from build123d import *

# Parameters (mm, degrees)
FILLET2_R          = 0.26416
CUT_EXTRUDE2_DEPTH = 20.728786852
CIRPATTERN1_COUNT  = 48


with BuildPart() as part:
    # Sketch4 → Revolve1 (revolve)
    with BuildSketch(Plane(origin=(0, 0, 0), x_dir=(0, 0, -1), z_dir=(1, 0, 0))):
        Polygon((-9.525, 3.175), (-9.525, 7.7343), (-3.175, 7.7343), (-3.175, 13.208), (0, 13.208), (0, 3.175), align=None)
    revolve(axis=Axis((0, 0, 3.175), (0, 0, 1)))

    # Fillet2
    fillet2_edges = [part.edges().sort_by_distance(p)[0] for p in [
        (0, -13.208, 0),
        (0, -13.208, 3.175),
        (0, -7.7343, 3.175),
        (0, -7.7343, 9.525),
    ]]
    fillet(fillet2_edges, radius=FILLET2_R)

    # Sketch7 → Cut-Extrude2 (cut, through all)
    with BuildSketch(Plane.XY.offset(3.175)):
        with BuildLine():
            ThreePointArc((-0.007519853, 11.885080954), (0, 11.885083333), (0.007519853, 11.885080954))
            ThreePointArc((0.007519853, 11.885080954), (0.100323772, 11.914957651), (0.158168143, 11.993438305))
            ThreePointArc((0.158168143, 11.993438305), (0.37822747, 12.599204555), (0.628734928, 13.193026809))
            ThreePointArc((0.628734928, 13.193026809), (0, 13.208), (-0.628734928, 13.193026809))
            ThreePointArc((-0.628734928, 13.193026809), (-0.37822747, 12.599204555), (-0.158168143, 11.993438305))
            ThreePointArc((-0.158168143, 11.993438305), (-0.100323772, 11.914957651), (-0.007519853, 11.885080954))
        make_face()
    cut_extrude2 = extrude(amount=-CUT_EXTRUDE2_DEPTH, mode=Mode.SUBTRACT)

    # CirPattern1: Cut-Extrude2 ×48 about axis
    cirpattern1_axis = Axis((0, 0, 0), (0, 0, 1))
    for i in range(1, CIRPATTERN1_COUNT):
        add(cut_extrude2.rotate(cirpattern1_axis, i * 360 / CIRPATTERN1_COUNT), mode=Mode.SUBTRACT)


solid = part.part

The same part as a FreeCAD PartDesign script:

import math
import FreeCAD as App
import Part
import Sketcher
from FreeCAD import Vector
Q = App.Units.Quantity


def edges_at(feature, points):
    """Names of the edges that pass closest to the given points."""
    edges = feature.Shape.Edges
    near = lambda p: min(range(len(edges)), key=lambda i: edges[i].distToShape(Part.Vertex(*p))[0])
    return sorted({f"Edge{near(p) + 1}" for p in points})


def add_polygon(sketch, points):
    """Adds a closed chain of lines whose ends are joined by coincident constraints."""
    first, n = sketch.GeometryCount, len(points)
    for a, b in zip(points, points[1:] + points[:1]):
        sketch.addGeometry(Part.LineSegment(App.Vector(*a, 0), App.Vector(*b, 0)), False)
    for i in range(n):
        sketch.addConstraint(Sketcher.Constraint("Coincident", first + i, 2, first + (i + 1) % n, 1))

doc = App.newDocument("Part")
params = doc.addObject("Spreadsheet::Sheet", "Params")
for row, (alias, value) in enumerate([
    ("sketch1_height", "0.25 in"),
    ("sketch1_width", "0.395 in"),
    ("sketch1_height2", "0.375 in"),
    ("revolution_angle", "360 deg"),
    ("fillet_radius", "0.0104 in"),
    ("sketch2_radius", "0.5 in"),
    ("sketch2_radius2", "0.5 in"),
    ("sketch2_radius3", "0.52 in"),
], start=1):
    params.set(f"A{row}", alias)
    params.set(f"B{row}", "=" + value)
    params.setAlias(f"B{row}", alias)

body = doc.addObject("PartDesign::Body", "Body")

# Sketch on YZ plane
sketch1 = doc.addObject("Sketcher::SketchObject", "Sketch")
body.addObject(sketch1)
sketch1.AttachmentSupport = (doc.YZ_Plane, [""])
sketch1.MapMode = "FlatFace"
add_polygon(sketch1, [(7.7, 9.5), (3.2, 9.5), (3.2, 0), (13.2, 0), (13.2, 3.2), (7.7, 3.2)])  # lines 0-5
sketch1.addConstraint([
    Sketcher.Constraint("Horizontal", 0),
    Sketcher.Constraint("Vertical", 1),
    Sketcher.Constraint("Horizontal", 2),
    Sketcher.Constraint("Vertical", 3),
    Sketcher.Constraint("Horizontal", 4),
    Sketcher.Constraint("Vertical", 5),
    Sketcher.Constraint("PointOnObject", 1, 2, -1),
    Sketcher.Constraint("DistanceY", 5, 1, 5, 2, Q("0.25 in")),
    Sketcher.Constraint("DistanceX", 2, 1, 2, 2, Q("0.395 in")),
    Sketcher.Constraint("DistanceY", 1, 2, 1, 1, Q("0.375 in")),
    Sketcher.Constraint("DistanceX", -1, 1, 2, 2, Q("0.52 in")),
    Sketcher.Constraint("DistanceX", 0, 2, 0, 1, Q("0.1795 in")),
])
sketch1.setExpression("Constraints[13]", "Params.sketch1_height")
sketch1.setExpression("Constraints[14]", "Params.sketch1_width")
sketch1.setExpression("Constraints[15]", "Params.sketch1_height2")
revolution = doc.addObject("PartDesign::Revolution", "Revolution")
body.addObject(revolution)
revolution.Profile = sketch1
revolution.ReferenceAxis = (sketch1, ["V_Axis"])
revolution.setExpression("Angle", "Params.revolution_angle")
doc.recompute()

fillet = doc.addObject("PartDesign::Fillet", "Fillet")
body.addObject(fillet)
fillet.Base = (revolution, edges_at(revolution, [
    (0, -13.208, 0),
    (0, -13.208, 3.175),
    (0, -7.734, 3.175),
    (0, -7.734, 9.525),
]))
fillet.setExpression("Radius", "Params.fillet_radius")

# Sketch on XY plane
sketch2 = doc.addObject("Sketcher::SketchObject", "Sketch001")
body.addObject(sketch2)
sketch2.AttachmentSupport = (doc.XY_Plane, [""])
sketch2.MapMode = "FlatFace"
sketch2.AttachmentOffset = App.Placement(Vector(0, 0, 0.125 * 25.4), App.Rotation())
sketch2.addGeometry([
    Part.ArcOfCircle(Part.Circle(Vector(0, 0.000217, 0), Vector(0, 0, 1), 11.884866), math.radians(89.963748), math.radians(90.036252)),  # 0
    Part.ArcOfCircle(Part.Circle(Vector(0.00762, 12.043842, 0), Vector(0, 0, 1), 0.158762), math.radians(-90.036251), math.radians(-18.510807)),  # 1
    Part.ArcOfCircle(Part.Circle(Vector(12.201118, 7.961398, 0), Vector(0, 0, 1), 12.699999), math.radians(155.673283), math.radians(161.489194)),  # 2
    Part.ArcOfCircle(Part.Circle(Vector(0, 0, 0), Vector(0, 0, 1), 13.208), math.radians(87.271542), math.radians(92.728458)),  # 3
    Part.ArcOfCircle(Part.Circle(Vector(-12.201118, 7.961398, 0), Vector(0, 0, 1), 12.699999), math.radians(18.510806), math.radians(24.326717)),  # 4
    Part.ArcOfCircle(Part.Circle(Vector(-0.00762, 12.043842, 0), Vector(0, 0, 1), 0.158762), math.radians(-161.489193), math.radians(-89.963749)),  # 5
], False)
sketch2.addConstraint([
    Sketcher.Constraint("Coincident", 0, 1, 1, 1),
    Sketcher.Constraint("Coincident", 1, 2, 2, 2),
    Sketcher.Constraint("Coincident", 2, 1, 3, 1),
    Sketcher.Constraint("Coincident", 3, 2, 4, 2),
    Sketcher.Constraint("Coincident", 4, 1, 5, 1),
    Sketcher.Constraint("Coincident", 5, 2, 0, 2),
    Sketcher.Constraint("Coincident", 3, 3, -1, 1),
    Sketcher.Constraint("PointOnObject", 0, 3, -2),
    Sketcher.Constraint("Radius", 2, Q("0.5 in")),
    Sketcher.Constraint("Radius", 4, Q("0.5 in")),
    Sketcher.Constraint("Radius", 3, Q("0.52 in")),
    Sketcher.Constraint("Radius", 1, Q("0.158762 mm")),
    Sketcher.Constraint("Radius", 5, Q("0.158762 mm")),
    Sketcher.Constraint("DistanceX", -1, 1, 1, 3, Q("0.0003 in")),
    Sketcher.Constraint("DistanceX", 5, 3, -1, 1, Q("0.0003 in")),
    Sketcher.Constraint("Radius", 0, Q("11.884866 mm")),
    Sketcher.Constraint("DistanceX", 0, 1, 1, 3, Q("0.0001 mm")),
    Sketcher.Constraint("DistanceX", 5, 3, 5, 2, Q("0.0001 mm")),
    Sketcher.Constraint("DistanceY", -1, 1, 0, 1, Q("11.885081 mm")),
    Sketcher.Constraint("DistanceX", -1, 1, 1, 2, Q("0.158168 mm")),
    Sketcher.Constraint("DistanceX", 4, 1, -1, 1, Q("0.158168 mm")),
    Sketcher.Constraint("DistanceY", 0, 3, 2, 3, Q("7.961181 mm")),
    Sketcher.Constraint("DistanceX", 4, 3, 1, 3, Q("12.208738 mm")),
])
sketch2.setExpression("Constraints[8]", "Params.sketch2_radius")
sketch2.setExpression("Constraints[9]", "Params.sketch2_radius2")
sketch2.setExpression("Constraints[10]", "Params.sketch2_radius3")
pocket1 = doc.addObject("PartDesign::Pocket", "Pocket")
body.addObject(pocket1)
pocket1.Profile = sketch2
pocket1.Type = "ThroughAll"
doc.recompute()

polarpattern = doc.addObject("PartDesign::PolarPattern", "PolarPattern")
body.addObject(polarpattern)
polarpattern.Originals = [pocket1]
polarpattern.Axis = (doc.Z_Axis, [""])
polarpattern.Angle = 360
polarpattern.Occurrences = 48
body.Tip = polarpattern

doc.recompute()
